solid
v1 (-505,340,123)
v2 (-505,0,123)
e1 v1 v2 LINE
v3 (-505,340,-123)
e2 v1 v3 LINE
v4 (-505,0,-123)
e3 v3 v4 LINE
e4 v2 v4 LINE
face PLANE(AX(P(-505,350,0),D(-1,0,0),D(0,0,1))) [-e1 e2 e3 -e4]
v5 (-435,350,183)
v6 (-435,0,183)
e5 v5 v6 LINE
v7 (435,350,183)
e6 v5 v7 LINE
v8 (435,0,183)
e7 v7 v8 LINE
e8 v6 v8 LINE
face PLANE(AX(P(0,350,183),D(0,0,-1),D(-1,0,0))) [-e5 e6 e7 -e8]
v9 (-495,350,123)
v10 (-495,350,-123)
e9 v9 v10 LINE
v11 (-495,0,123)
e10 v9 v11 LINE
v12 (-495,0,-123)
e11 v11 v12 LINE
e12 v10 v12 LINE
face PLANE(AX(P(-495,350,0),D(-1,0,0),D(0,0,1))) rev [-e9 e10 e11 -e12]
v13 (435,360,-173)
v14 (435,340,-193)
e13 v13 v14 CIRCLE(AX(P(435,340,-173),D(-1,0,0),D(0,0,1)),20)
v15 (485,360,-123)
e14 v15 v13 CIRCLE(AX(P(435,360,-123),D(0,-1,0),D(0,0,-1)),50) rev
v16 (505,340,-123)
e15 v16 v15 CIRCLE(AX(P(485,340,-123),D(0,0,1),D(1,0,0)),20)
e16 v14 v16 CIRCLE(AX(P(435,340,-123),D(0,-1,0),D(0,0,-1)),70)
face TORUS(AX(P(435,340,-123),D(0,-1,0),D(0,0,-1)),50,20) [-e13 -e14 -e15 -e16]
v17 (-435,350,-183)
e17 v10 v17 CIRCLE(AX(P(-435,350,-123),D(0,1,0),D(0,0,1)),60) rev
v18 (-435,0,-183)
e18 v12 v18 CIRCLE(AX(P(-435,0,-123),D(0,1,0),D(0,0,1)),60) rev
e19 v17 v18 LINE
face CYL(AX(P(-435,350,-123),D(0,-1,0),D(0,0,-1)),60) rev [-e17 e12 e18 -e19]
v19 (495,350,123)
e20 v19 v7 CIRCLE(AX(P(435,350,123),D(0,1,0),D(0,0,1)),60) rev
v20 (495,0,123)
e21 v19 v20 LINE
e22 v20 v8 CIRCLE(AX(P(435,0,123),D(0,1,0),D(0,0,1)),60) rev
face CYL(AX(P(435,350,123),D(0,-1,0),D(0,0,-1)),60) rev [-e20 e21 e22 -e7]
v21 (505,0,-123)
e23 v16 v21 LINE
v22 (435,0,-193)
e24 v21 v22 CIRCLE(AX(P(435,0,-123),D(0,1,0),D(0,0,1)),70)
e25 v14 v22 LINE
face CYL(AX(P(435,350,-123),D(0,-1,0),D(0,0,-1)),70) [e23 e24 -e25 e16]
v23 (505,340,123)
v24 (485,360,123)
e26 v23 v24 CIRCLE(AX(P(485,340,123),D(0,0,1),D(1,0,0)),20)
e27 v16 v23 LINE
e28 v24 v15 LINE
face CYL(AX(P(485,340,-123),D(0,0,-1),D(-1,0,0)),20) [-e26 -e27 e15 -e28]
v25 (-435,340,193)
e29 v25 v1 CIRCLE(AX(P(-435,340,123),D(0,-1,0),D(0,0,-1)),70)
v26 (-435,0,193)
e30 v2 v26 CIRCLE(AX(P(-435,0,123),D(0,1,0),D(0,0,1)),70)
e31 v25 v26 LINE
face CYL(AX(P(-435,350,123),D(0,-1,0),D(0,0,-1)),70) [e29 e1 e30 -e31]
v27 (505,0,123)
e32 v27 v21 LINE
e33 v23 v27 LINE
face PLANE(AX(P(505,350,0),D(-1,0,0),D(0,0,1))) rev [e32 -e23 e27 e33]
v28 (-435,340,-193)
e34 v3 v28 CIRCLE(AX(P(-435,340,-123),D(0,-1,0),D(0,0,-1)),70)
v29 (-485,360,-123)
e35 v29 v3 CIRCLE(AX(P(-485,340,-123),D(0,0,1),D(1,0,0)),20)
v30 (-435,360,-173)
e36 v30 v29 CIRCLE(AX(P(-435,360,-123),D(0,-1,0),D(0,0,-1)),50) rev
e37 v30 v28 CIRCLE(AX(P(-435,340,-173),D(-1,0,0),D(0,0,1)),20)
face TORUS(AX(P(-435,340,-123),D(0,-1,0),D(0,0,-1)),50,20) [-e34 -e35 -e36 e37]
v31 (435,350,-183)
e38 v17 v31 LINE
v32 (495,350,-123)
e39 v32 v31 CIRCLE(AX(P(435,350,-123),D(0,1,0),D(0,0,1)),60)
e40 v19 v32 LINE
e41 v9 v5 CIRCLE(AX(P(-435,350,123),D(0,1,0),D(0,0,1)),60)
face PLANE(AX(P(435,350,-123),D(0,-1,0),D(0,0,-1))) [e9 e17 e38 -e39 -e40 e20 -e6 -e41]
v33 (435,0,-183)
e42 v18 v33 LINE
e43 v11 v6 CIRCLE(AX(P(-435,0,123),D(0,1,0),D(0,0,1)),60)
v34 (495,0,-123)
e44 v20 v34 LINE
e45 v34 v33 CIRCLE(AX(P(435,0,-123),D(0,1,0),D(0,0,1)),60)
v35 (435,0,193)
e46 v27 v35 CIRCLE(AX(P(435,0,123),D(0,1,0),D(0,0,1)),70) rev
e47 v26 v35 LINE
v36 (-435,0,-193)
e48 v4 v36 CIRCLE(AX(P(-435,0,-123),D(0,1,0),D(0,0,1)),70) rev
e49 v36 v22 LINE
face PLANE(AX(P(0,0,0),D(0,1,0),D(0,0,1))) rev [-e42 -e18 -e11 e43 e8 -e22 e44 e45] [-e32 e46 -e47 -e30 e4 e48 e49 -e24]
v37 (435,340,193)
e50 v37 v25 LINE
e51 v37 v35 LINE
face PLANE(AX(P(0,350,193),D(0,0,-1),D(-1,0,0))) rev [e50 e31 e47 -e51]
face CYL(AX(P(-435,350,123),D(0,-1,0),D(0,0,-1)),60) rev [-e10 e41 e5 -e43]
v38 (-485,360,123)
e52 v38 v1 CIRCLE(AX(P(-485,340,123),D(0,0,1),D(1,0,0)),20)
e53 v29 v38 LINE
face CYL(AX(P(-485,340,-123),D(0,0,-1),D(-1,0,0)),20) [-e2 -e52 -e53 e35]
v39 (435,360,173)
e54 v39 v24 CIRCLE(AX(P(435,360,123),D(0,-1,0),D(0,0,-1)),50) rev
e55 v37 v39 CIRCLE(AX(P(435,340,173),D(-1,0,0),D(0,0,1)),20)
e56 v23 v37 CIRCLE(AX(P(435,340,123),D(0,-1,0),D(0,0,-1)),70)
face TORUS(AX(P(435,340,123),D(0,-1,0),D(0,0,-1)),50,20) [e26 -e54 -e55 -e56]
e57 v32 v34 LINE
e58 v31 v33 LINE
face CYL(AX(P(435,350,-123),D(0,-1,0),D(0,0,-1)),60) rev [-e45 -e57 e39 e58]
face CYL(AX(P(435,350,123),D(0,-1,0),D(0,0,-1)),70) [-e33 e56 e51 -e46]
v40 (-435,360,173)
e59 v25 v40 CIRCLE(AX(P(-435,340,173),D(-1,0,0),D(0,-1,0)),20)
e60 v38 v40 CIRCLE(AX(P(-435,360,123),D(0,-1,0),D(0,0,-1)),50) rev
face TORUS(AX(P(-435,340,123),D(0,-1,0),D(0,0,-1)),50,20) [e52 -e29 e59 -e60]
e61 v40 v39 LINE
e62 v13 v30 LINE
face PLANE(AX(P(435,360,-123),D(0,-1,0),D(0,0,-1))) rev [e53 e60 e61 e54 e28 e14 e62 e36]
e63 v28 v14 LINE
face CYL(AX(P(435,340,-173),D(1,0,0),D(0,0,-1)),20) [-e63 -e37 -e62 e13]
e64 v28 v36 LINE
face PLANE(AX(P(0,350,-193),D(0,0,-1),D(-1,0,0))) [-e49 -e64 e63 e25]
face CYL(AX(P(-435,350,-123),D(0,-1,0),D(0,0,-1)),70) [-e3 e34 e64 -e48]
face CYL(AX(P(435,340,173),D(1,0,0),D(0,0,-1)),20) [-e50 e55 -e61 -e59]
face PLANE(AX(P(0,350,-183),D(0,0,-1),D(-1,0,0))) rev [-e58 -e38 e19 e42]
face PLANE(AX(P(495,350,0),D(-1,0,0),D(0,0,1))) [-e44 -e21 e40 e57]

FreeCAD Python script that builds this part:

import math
import FreeCAD as App
import Part
import Sketcher
from FreeCAD import Vector
Q = App.Units.Quantity


def edges_at(feature, points):
    """Names of the edges that pass closest to the given points."""
    edges = feature.Shape.Edges
    near = lambda p: min(range(len(edges)), key=lambda i: edges[i].distToShape(Part.Vertex(*p))[0])
    return sorted({f"Edge{near(p) + 1}" for p in points})

doc = App.newDocument("Part")
body = doc.addObject("PartDesign::Body", "Body")

sketch1 = body.newObject("Sketcher::SketchObject", "Sketch")
sketch1.AttachmentSupport = (doc.getObject("XZ_Plane"), [""])
sketch1.MapMode = "FlatFace"
sketch1.addGeometry(Part.LineSegment(Vector(-505, -123, 0), Vector(-505, 123, 0)), False)
sketch1.addGeometry(Part.ArcOfCircle(Part.Circle(Vector(-435, 123, 0), Vector(0, 0, 1), 70), math.radians(90), math.radians(180)), False)
sketch1.addGeometry(Part.LineSegment(Vector(-435, 193, 0), Vector(435, 193, 0)), False)
sketch1.addGeometry(Part.ArcOfCircle(Part.Circle(Vector(435, 123, 0), Vector(0, 0, 1), 70), math.radians(0), math.radians(90)), False)
sketch1.addGeometry(Part.LineSegment(Vector(505, 123, 0), Vector(505, -123, 0)), False)
sketch1.addGeometry(Part.ArcOfCircle(Part.Circle(Vector(435, -123, 0), Vector(0, 0, 1), 70), math.radians(-90), math.radians(0)), False)
sketch1.addGeometry(Part.LineSegment(Vector(435, -193, 0), Vector(-435, -193, 0)), False)
sketch1.addGeometry(Part.ArcOfCircle(Part.Circle(Vector(-435, -123, 0), Vector(0, 0, 1), 70), math.radians(180), math.radians(270)), False)
sketch1.addGeometry(Part.LineSegment(Vector(495, -123, 0), Vector(495, 123, 0)), False)
sketch1.addGeometry(Part.ArcOfCircle(Part.Circle(Vector(435, 123, 0), Vector(0, 0, 1), 60), math.radians(0), math.radians(90)), False)
sketch1.addGeometry(Part.LineSegment(Vector(435, 183, 0), Vector(-435, 183, 0)), False)
sketch1.addGeometry(Part.ArcOfCircle(Part.Circle(Vector(-435, 123, 0), Vector(0, 0, 1), 60), math.radians(90), math.radians(180)), False)
sketch1.addGeometry(Part.LineSegment(Vector(-495, 123, 0), Vector(-495, -123, 0)), False)
sketch1.addGeometry(Part.ArcOfCircle(Part.Circle(Vector(-435, -123, 0), Vector(0, 0, 1), 60), math.radians(-180), math.radians(-90)), False)
sketch1.addGeometry(Part.LineSegment(Vector(-435, -183, 0), Vector(435, -183, 0)), False)
sketch1.addGeometry(Part.ArcOfCircle(Part.Circle(Vector(435, -123, 0), Vector(0, 0, 1), 60), math.radians(-90), math.radians(0)), False)
sketch1.addConstraint(Sketcher.Constraint("Tangent", 0, 2, 1, 2))
sketch1.addConstraint(Sketcher.Constraint("Tangent", 1, 1, 2, 1))
sketch1.addConstraint(Sketcher.Constraint("Tangent", 2, 2, 3, 2))
sketch1.addConstraint(Sketcher.Constraint("Tangent", 3, 1, 4, 1))
sketch1.addConstraint(Sketcher.Constraint("Tangent", 4, 2, 5, 2))
sketch1.addConstraint(Sketcher.Constraint("Tangent", 5, 1, 6, 1))
sketch1.addConstraint(Sketcher.Constraint("Tangent", 6, 2, 7, 2))
sketch1.addConstraint(Sketcher.Constraint("Tangent", 7, 1, 0, 1))
sketch1.addConstraint(Sketcher.Constraint("Tangent", 8, 2, 9, 1))
sketch1.addConstraint(Sketcher.Constraint("Tangent", 9, 2, 10, 1))
sketch1.addConstraint(Sketcher.Constraint("Tangent", 10, 2, 11, 1))
sketch1.addConstraint(Sketcher.Constraint("Tangent", 11, 2, 12, 1))
sketch1.addConstraint(Sketcher.Constraint("Tangent", 12, 2, 13, 1))
sketch1.addConstraint(Sketcher.Constraint("Tangent", 13, 2, 14, 1))
sketch1.addConstraint(Sketcher.Constraint("Tangent", 14, 2, 15, 1))
sketch1.addConstraint(Sketcher.Constraint("Tangent", 15, 2, 8, 1))
sketch1.addConstraint(Sketcher.Constraint("Vertical", 0))
sketch1.addConstraint(Sketcher.Constraint("Horizontal", 2))
sketch1.addConstraint(Sketcher.Constraint("Vertical", 4))
sketch1.addConstraint(Sketcher.Constraint("Horizontal", 6))
sketch1.addConstraint(Sketcher.Constraint("Vertical", 8))
sketch1.addConstraint(Sketcher.Constraint("Horizontal", 10))
sketch1.addConstraint(Sketcher.Constraint("Vertical", 12))
sketch1.addConstraint(Sketcher.Constraint("Horizontal", 14))
sketch1.addConstraint(Sketcher.Constraint("Coincident", 9, 3, 3, 3))
sketch1.addConstraint(Sketcher.Constraint("Coincident", 11, 3, 1, 3))
sketch1.addConstraint(Sketcher.Constraint("Coincident", 13, 3, 7, 3))
sketch1.addConstraint(Sketcher.Constraint("Equal", 1, 3))
sketch1.addConstraint(Sketcher.Constraint("Equal", 3, 5))
sketch1.addConstraint(Sketcher.Constraint("Equal", 5, 7))
sketch1.addConstraint(Sketcher.Constraint("Equal", 13, 15))
sketch1.addConstraint(Sketcher.Constraint("Symmetric", 1, 3, 5, 3, -1, 1))
sketch1.addConstraint(Sketcher.Constraint("Radius", 1, Q("70 mm")))
sketch1.addConstraint(Sketcher.Constraint("Radius", 9, Q("60 mm")))
sketch1.addConstraint(Sketcher.Constraint("DistanceX", 2, 1, 2, 2, Q("870 mm")))
sketch1.addConstraint(Sketcher.Constraint("DistanceY", 0, 1, 0, 2, Q("246 mm")))
pad1 = body.newObject("PartDesign::Pad", "Pad")
pad1.Profile = sketch1
pad1.Length = 350
pad1.Reversed = True

sketch2 = body.newObject("Sketcher::SketchObject", "Sketch001")
sketch2.AttachmentSupport = (doc.getObject("XZ_Plane"), [""])
sketch2.MapMode = "FlatFace"
sketch2.AttachmentOffset = App.Placement(Vector(0, 0, -350), App.Rotation())
sketch2.addGeometry(Part.LineSegment(Vector(-435, 193, 0), Vector(435, 193, 0)), False)
sketch2.addGeometry(Part.ArcOfCircle(Part.Circle(Vector(435, 123, 0), Vector(0, 0, 1), 70), math.radians(0), math.radians(90)), False)
sketch2.addGeometry(Part.LineSegment(Vector(505, 123, 0), Vector(505, -123, 0)), False)
sketch2.addGeometry(Part.ArcOfCircle(Part.Circle(Vector(435, -123, 0), Vector(0, 0, 1), 70), math.radians(-90), math.radians(0)), False)
sketch2.addGeometry(Part.LineSegment(Vector(435, -193, 0), Vector(-435, -193, 0)), False)
sketch2.addGeometry(Part.ArcOfCircle(Part.Circle(Vector(-435, -123, 0), Vector(0, 0, 1), 70), math.radians(180), math.radians(270)), False)
sketch2.addGeometry(Part.LineSegment(Vector(-505, -123, 0), Vector(-505, 123, 0)), False)
sketch2.addGeometry(Part.ArcOfCircle(Part.Circle(Vector(-435, 123, 0), Vector(0, 0, 1), 70), math.radians(90), math.radians(180)), False)
sketch2.addConstraint(Sketcher.Constraint("Tangent", 0, 2, 1, 2))
sketch2.addConstraint(Sketcher.Constraint("Tangent", 1, 1, 2, 1))
sketch2.addConstraint(Sketcher.Constraint("Tangent", 2, 2, 3, 2))
sketch2.addConstraint(Sketcher.Constraint("Tangent", 3, 1, 4, 1))
sketch2.addConstraint(Sketcher.Constraint("Tangent", 4, 2, 5, 2))
sketch2.addConstraint(Sketcher.Constraint("Tangent", 5, 1, 6, 1))
sketch2.addConstraint(Sketcher.Constraint("Tangent", 6, 2, 7, 2))
sketch2.addConstraint(Sketcher.Constraint("Tangent", 7, 1, 0, 1))
sketch2.addConstraint(Sketcher.Constraint("Horizontal", 0))
sketch2.addConstraint(Sketcher.Constraint("Vertical", 2))
sketch2.addConstraint(Sketcher.Constraint("Horizontal", 4))
sketch2.addConstraint(Sketcher.Constraint("Vertical", 6))
sketch2.addConstraint(Sketcher.Constraint("Equal", 1, 3))
sketch2.addConstraint(Sketcher.Constraint("Equal", 3, 5))
sketch2.addConstraint(Sketcher.Constraint("Equal", 5, 7))
sketch2.addConstraint(Sketcher.Constraint("Symmetric", 1, 3, 5, 3, -1, 1))
sketch2.addConstraint(Sketcher.Constraint("Radius", 1, Q("70 mm")))
sketch2.addConstraint(Sketcher.Constraint("DistanceX", 0, 1, 0, 2, Q("870 mm")))
sketch2.addConstraint(Sketcher.Constraint("DistanceY", 2, 2, 2, 1, Q("246 mm")))
pad2 = body.newObject("PartDesign::Pad", "Pad001")
pad2.Profile = sketch2
pad2.Length = 10
pad2.Reversed = True
doc.recompute()

fillet = body.newObject("PartDesign::Fillet", "Fillet")
fillet.Base = (pad2, edges_at(pad2, [
    (484.497, 360, -172.497),
    (0, 360, -193),
    (-484.497, 360, -172.497),
    (-505, 360, 0),
    (-484.497, 360, 172.497),
    (0, 360, 193),
    (484.497, 360, 172.497),
    (505, 360, 0),
]))
fillet.Radius = 20

doc.recompute()
